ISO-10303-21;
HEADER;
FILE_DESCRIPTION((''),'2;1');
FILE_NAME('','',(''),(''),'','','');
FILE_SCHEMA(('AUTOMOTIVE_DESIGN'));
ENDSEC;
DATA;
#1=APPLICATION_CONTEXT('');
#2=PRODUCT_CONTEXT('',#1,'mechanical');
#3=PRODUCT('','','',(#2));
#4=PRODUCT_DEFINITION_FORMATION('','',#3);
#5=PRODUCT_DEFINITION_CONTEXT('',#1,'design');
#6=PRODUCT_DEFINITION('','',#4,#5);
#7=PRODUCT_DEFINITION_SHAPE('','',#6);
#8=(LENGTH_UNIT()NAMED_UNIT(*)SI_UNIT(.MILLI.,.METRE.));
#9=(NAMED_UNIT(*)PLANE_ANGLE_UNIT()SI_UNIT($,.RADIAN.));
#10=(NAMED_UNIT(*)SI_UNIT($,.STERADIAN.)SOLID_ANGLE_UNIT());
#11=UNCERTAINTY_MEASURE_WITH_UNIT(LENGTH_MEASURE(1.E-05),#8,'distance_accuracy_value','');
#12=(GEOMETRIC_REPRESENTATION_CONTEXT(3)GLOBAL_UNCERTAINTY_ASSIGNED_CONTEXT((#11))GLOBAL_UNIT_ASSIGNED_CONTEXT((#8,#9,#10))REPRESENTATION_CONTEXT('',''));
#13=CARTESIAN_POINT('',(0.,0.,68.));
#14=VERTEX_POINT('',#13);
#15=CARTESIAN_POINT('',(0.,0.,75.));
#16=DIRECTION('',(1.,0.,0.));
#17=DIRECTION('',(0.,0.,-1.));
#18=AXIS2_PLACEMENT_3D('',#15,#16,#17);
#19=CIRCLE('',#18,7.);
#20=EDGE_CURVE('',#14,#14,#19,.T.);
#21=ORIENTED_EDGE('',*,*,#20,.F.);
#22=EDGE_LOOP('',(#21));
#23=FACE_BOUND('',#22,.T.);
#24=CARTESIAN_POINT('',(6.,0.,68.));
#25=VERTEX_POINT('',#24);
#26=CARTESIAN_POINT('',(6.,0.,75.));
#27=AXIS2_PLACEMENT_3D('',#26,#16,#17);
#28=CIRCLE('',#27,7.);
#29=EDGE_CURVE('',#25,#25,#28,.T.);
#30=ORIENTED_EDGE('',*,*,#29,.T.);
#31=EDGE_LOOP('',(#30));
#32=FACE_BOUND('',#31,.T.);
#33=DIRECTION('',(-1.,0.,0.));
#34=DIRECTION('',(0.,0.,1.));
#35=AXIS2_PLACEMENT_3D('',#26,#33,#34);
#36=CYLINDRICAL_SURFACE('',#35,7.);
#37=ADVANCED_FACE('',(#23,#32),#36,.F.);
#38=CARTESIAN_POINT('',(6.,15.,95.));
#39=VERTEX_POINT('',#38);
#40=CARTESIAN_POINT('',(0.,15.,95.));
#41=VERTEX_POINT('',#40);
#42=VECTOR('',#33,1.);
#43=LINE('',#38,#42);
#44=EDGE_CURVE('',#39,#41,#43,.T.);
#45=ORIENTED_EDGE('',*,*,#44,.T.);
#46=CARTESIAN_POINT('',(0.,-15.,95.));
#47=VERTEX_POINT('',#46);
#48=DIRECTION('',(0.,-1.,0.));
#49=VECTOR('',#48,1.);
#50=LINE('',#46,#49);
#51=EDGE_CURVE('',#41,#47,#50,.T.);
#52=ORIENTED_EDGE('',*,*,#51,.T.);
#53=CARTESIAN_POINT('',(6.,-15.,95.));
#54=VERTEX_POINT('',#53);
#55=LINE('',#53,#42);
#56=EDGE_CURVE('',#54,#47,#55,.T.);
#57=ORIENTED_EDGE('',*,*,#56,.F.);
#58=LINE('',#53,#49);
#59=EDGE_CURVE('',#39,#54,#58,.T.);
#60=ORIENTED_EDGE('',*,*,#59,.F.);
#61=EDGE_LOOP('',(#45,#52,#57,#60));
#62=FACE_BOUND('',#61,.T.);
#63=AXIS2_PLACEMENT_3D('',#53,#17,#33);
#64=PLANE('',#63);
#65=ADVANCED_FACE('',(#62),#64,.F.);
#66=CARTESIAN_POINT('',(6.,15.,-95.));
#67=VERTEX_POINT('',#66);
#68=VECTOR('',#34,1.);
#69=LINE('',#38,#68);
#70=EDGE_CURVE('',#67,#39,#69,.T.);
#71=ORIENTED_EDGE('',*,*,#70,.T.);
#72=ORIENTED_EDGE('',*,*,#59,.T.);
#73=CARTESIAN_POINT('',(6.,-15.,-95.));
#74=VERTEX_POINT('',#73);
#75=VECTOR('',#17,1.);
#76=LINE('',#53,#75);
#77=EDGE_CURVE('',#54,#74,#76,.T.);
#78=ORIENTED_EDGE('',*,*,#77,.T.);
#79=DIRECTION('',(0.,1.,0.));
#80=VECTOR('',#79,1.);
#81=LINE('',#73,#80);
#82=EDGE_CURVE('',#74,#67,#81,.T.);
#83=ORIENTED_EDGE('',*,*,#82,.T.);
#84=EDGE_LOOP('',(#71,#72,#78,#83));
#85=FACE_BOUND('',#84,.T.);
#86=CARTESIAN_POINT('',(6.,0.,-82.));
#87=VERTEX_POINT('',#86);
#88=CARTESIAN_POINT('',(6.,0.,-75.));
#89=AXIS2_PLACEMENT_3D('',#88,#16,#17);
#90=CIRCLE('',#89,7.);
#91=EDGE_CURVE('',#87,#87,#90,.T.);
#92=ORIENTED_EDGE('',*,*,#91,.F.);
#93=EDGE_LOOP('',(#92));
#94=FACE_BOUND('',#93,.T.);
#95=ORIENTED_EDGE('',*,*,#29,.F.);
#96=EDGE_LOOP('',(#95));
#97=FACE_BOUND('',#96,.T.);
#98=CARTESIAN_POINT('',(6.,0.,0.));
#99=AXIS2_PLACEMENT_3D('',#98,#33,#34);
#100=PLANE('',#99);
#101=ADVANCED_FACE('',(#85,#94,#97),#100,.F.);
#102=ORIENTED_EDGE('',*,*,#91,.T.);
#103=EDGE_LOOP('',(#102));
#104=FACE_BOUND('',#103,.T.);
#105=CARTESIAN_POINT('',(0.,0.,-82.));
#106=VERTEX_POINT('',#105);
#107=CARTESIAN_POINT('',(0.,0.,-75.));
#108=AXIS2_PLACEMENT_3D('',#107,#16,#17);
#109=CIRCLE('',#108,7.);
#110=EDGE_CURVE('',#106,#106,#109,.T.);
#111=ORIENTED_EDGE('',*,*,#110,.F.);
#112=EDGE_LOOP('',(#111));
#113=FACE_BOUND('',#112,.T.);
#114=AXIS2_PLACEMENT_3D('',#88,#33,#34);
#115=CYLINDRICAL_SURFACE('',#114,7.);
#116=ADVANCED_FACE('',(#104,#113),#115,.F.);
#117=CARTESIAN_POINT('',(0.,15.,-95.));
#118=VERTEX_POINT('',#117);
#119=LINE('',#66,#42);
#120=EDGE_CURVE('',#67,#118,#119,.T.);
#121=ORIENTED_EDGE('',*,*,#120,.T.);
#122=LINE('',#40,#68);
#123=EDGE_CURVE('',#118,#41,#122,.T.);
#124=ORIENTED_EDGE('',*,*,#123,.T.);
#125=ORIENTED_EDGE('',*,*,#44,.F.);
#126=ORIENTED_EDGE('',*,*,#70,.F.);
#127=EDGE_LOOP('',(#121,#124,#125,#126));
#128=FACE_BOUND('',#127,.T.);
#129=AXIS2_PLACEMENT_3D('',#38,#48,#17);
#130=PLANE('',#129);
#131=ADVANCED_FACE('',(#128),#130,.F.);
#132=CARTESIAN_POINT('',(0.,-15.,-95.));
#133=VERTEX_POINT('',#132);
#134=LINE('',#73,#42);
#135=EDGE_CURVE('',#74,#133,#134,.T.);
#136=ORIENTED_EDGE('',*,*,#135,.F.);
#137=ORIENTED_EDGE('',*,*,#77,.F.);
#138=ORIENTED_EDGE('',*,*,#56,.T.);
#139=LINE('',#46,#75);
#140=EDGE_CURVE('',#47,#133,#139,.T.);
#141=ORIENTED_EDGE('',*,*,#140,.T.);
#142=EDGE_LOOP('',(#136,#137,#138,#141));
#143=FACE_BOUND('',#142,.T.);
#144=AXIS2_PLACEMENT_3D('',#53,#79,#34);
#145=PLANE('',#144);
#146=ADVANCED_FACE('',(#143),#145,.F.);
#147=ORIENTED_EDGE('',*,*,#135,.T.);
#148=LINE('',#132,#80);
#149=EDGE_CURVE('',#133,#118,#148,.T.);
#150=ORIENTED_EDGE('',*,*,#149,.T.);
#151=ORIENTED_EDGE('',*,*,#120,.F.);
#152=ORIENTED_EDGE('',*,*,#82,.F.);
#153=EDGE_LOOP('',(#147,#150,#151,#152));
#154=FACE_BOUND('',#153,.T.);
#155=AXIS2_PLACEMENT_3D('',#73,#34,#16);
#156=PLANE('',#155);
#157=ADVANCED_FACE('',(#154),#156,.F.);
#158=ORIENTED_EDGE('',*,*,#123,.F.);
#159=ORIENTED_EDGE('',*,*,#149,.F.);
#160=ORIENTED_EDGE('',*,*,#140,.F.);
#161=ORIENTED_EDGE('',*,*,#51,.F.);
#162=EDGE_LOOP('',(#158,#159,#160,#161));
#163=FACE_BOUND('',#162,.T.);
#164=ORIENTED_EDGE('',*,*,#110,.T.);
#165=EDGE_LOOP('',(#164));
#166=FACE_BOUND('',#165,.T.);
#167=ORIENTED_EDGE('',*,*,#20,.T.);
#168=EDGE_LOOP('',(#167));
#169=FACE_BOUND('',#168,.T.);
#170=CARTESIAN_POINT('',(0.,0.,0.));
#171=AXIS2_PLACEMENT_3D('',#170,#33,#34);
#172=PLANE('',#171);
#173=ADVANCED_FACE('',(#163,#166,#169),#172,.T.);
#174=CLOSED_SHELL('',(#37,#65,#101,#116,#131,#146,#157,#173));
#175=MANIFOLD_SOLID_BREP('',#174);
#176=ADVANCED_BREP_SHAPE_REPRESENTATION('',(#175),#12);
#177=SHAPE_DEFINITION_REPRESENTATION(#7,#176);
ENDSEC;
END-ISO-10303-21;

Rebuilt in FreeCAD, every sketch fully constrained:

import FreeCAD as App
import Part
import Sketcher

V = App.Vector


def add_polygon(sketch, points):
    """Adds a closed chain of lines whose ends are joined by coincident constraints."""
    first, n = sketch.GeometryCount, len(points)
    for a, b in zip(points, points[1:] + points[:1]):
        sketch.addGeometry(Part.LineSegment(App.Vector(*a, 0), App.Vector(*b, 0)), False)
    for i in range(n):
        sketch.addConstraint(Sketcher.Constraint("Coincident", first + i, 2, first + (i + 1) % n, 1))

doc = App.newDocument("Part")
params = doc.addObject("Spreadsheet::Sheet", "Params")
for row, (alias, value) in enumerate([
    ("sketch1_diameter", "14 mm"),
    ("sketch1_width", "30 mm"),
    ("sketch1_height", "190 mm"),
    ("pad1_length", "6 mm"),
], start=1):
    params.set(f"A{row}", alias)
    params.set(f"B{row}", "=" + value)
    params.setAlias(f"B{row}", alias)

body = doc.addObject("PartDesign::Body", "Body")

# Sketch on YZ plane
sketch1 = body.newObject("Sketcher::SketchObject", "Sketch")
sketch1.AttachmentSupport = (doc.getObject("YZ_Plane"), [""])
sketch1.MapMode = "FlatFace"
add_polygon(sketch1, [(15, 95), (-15, 95), (-15, -95), (15, -95)])  # lines 0-3
sketch1.addGeometry(Part.Circle(V(0, 75, 0), V(0, 0, 1), 7), False)  # 4
sketch1.addGeometry(Part.Circle(V(0, -75, 0), V(0, 0, 1), 7), False)  # 5
sketch1.addConstraint([
    Sketcher.Constraint("Horizontal", 0),
    Sketcher.Constraint("Vertical", 1),
    Sketcher.Constraint("Horizontal", 2),
    Sketcher.Constraint("Vertical", 3),
    Sketcher.Constraint("Equal", 4, 5),
    Sketcher.Constraint("Symmetric", 4, 3, 5, 3, -1, 1),
    Sketcher.Constraint("Symmetric", 0, 2, 2, 2, -1, 1),
    Sketcher.Constraint("PointOnObject", 4, 3, -2),
    Sketcher.Constraint("Diameter", 4, 14.0),
    Sketcher.Constraint("DistanceX", 0, 2, 0, 1, 30.0),
    Sketcher.Constraint("DistanceY", 1, 2, 1, 1, 190.0),
    Sketcher.Constraint("DistanceY", -1, 1, 4, 3, 75.0),
])
sketch1.setExpression("Constraints[12]", "Params.sketch1_diameter")
sketch1.setExpression("Constraints[13]", "Params.sketch1_width")
sketch1.setExpression("Constraints[14]", "Params.sketch1_height")
pad1 = body.newObject("PartDesign::Pad", "Pad")
pad1.Profile = sketch1
pad1.setExpression("Length", "Params.pad1_length")

doc.recompute()
